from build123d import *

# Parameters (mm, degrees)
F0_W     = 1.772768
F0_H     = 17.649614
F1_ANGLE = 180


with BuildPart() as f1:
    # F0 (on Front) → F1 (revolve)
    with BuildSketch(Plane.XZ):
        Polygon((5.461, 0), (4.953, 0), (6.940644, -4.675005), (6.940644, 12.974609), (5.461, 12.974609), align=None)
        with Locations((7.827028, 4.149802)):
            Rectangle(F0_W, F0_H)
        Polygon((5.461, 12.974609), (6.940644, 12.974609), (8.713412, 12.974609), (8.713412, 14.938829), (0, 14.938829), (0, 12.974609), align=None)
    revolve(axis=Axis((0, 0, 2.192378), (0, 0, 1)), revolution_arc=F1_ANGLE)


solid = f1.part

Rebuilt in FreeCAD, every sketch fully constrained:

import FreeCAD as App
import Part
import Sketcher
from FreeCAD import Vector
Q = App.Units.Quantity

doc = App.newDocument("Part")
body = doc.addObject("PartDesign::Body", "Body")

# Sketch on XZ plane
sketch1 = body.newObject("Sketcher::SketchObject", "Sketch")
sketch1.AttachmentSupport = (doc.getObject("XZ_Plane"), [""])
sketch1.MapMode = "FlatFace"
sketch1.addGeometry([
    Part.LineSegment(Vector(5.5, 0, 0), Vector(5, 0, 0)),  # 0
    Part.LineSegment(Vector(5, 0, 0), Vector(6.9, -4.7, 0)),  # 1
    Part.LineSegment(Vector(6.9, -4.7, 0), Vector(8.7, -4.7, 0)),  # 2
    Part.LineSegment(Vector(8.7, -4.7, 0), Vector(8.7, 14.9, 0)),  # 3
    Part.LineSegment(Vector(8.7, 14.9, 0), Vector(0, 14.9, 0)),  # 4
    Part.LineSegment(Vector(0, 14.9, 0), Vector(0, 13, 0)),  # 5
    Part.LineSegment(Vector(0, 13, 0), Vector(5.5, 13, 0)),  # 6
    Part.LineSegment(Vector(5.5, 13, 0), Vector(5.5, 0, 0)),  # 7
], False)
sketch1.addConstraint([
    Sketcher.Constraint("Coincident", 0, 2, 1, 1),
    Sketcher.Constraint("Coincident", 1, 2, 2, 1),
    Sketcher.Constraint("Coincident", 2, 2, 3, 1),
    Sketcher.Constraint("Coincident", 3, 2, 4, 1),
    Sketcher.Constraint("Coincident", 4, 2, 5, 1),
    Sketcher.Constraint("Coincident", 5, 2, 6, 1),
    Sketcher.Constraint("Coincident", 6, 2, 7, 1),
    Sketcher.Constraint("Coincident", 7, 2, 0, 1),
    Sketcher.Constraint("Horizontal", 0),
    Sketcher.Constraint("Horizontal", 2),
    Sketcher.Constraint("Vertical", 3),
    Sketcher.Constraint("Horizontal", 4),
    Sketcher.Constraint("Vertical", 5),
    Sketcher.Constraint("Horizontal", 6),
    Sketcher.Constraint("Vertical", 7),
    Sketcher.Constraint("PointOnObject", 0, 2, -1),
    Sketcher.Constraint("PointOnObject", 4, 2, -2),
    Sketcher.Constraint("Distance", 1, Q("0.2 in")),
    Sketcher.Constraint("DistanceX", 0, 2, 0, 1, Q("0.02 in")),
    Sketcher.Constraint("DistanceX", 6, 1, 6, 2, Q("0.215 in")),
    Sketcher.Constraint("DistanceX", 2, 1, 2, 2, 1.772768),
    Sketcher.Constraint("DistanceY", 5, 2, 5, 1, 1.96422),
    Sketcher.Constraint("DistanceY", 7, 2, 7, 1, 12.974609),
    Sketcher.Constraint("DistanceX", 4, 2, 4, 1, 8.713412),
])
revolution = body.newObject("PartDesign::Revolution", "Revolution")
revolution.Profile = sketch1
revolution.ReferenceAxis = (sketch1, ["V_Axis"])
revolution.Angle = 180

doc.recompute()
